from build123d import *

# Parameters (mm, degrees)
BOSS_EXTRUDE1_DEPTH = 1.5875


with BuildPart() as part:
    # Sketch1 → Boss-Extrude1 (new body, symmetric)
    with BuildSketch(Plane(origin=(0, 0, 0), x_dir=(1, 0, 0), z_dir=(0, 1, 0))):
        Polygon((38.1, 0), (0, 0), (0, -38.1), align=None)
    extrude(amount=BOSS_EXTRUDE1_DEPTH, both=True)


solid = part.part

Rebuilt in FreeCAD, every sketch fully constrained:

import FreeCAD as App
import Part
import Sketcher
from FreeCAD import Vector
Q = App.Units.Quantity


def add_polygon(sketch, points):
    """Adds a closed chain of lines whose ends are joined by coincident constraints."""
    first, n = sketch.GeometryCount, len(points)
    for a, b in zip(points, points[1:] + points[:1]):
        sketch.addGeometry(Part.LineSegment(App.Vector(*a, 0), App.Vector(*b, 0)), False)
    for i in range(n):
        sketch.addConstraint(Sketcher.Constraint("Coincident", first + i, 2, first + (i + 1) % n, 1))

doc = App.newDocument("Part")
body = doc.addObject("PartDesign::Body", "Body")

sketch1 = body.newObject("Sketcher::SketchObject", "Sketch")
sketch1.AttachmentSupport = (doc.getObject("XZ_Plane"), [""])
sketch1.MapMode = "FlatFace"
add_polygon(sketch1, [(38, 0), (0, 0), (0, 38)])
sketch1.addConstraint(Sketcher.Constraint("Horizontal", 0))
sketch1.addConstraint(Sketcher.Constraint("Vertical", 1))
sketch1.addConstraint(Sketcher.Constraint("Coincident", 0, 2, -1, 1))
sketch1.addConstraint(Sketcher.Constraint("Equal", 0, 1))
sketch1.addConstraint(Sketcher.Constraint("DistanceX", 0, 2, 0, 1, Q("1.5 in")))
pad1 = body.newObject("PartDesign::Pad", "Pad")
pad1.Profile = sketch1
pad1.Length = Q("0.125 in")
pad1.Midplane = True

doc.recompute()
